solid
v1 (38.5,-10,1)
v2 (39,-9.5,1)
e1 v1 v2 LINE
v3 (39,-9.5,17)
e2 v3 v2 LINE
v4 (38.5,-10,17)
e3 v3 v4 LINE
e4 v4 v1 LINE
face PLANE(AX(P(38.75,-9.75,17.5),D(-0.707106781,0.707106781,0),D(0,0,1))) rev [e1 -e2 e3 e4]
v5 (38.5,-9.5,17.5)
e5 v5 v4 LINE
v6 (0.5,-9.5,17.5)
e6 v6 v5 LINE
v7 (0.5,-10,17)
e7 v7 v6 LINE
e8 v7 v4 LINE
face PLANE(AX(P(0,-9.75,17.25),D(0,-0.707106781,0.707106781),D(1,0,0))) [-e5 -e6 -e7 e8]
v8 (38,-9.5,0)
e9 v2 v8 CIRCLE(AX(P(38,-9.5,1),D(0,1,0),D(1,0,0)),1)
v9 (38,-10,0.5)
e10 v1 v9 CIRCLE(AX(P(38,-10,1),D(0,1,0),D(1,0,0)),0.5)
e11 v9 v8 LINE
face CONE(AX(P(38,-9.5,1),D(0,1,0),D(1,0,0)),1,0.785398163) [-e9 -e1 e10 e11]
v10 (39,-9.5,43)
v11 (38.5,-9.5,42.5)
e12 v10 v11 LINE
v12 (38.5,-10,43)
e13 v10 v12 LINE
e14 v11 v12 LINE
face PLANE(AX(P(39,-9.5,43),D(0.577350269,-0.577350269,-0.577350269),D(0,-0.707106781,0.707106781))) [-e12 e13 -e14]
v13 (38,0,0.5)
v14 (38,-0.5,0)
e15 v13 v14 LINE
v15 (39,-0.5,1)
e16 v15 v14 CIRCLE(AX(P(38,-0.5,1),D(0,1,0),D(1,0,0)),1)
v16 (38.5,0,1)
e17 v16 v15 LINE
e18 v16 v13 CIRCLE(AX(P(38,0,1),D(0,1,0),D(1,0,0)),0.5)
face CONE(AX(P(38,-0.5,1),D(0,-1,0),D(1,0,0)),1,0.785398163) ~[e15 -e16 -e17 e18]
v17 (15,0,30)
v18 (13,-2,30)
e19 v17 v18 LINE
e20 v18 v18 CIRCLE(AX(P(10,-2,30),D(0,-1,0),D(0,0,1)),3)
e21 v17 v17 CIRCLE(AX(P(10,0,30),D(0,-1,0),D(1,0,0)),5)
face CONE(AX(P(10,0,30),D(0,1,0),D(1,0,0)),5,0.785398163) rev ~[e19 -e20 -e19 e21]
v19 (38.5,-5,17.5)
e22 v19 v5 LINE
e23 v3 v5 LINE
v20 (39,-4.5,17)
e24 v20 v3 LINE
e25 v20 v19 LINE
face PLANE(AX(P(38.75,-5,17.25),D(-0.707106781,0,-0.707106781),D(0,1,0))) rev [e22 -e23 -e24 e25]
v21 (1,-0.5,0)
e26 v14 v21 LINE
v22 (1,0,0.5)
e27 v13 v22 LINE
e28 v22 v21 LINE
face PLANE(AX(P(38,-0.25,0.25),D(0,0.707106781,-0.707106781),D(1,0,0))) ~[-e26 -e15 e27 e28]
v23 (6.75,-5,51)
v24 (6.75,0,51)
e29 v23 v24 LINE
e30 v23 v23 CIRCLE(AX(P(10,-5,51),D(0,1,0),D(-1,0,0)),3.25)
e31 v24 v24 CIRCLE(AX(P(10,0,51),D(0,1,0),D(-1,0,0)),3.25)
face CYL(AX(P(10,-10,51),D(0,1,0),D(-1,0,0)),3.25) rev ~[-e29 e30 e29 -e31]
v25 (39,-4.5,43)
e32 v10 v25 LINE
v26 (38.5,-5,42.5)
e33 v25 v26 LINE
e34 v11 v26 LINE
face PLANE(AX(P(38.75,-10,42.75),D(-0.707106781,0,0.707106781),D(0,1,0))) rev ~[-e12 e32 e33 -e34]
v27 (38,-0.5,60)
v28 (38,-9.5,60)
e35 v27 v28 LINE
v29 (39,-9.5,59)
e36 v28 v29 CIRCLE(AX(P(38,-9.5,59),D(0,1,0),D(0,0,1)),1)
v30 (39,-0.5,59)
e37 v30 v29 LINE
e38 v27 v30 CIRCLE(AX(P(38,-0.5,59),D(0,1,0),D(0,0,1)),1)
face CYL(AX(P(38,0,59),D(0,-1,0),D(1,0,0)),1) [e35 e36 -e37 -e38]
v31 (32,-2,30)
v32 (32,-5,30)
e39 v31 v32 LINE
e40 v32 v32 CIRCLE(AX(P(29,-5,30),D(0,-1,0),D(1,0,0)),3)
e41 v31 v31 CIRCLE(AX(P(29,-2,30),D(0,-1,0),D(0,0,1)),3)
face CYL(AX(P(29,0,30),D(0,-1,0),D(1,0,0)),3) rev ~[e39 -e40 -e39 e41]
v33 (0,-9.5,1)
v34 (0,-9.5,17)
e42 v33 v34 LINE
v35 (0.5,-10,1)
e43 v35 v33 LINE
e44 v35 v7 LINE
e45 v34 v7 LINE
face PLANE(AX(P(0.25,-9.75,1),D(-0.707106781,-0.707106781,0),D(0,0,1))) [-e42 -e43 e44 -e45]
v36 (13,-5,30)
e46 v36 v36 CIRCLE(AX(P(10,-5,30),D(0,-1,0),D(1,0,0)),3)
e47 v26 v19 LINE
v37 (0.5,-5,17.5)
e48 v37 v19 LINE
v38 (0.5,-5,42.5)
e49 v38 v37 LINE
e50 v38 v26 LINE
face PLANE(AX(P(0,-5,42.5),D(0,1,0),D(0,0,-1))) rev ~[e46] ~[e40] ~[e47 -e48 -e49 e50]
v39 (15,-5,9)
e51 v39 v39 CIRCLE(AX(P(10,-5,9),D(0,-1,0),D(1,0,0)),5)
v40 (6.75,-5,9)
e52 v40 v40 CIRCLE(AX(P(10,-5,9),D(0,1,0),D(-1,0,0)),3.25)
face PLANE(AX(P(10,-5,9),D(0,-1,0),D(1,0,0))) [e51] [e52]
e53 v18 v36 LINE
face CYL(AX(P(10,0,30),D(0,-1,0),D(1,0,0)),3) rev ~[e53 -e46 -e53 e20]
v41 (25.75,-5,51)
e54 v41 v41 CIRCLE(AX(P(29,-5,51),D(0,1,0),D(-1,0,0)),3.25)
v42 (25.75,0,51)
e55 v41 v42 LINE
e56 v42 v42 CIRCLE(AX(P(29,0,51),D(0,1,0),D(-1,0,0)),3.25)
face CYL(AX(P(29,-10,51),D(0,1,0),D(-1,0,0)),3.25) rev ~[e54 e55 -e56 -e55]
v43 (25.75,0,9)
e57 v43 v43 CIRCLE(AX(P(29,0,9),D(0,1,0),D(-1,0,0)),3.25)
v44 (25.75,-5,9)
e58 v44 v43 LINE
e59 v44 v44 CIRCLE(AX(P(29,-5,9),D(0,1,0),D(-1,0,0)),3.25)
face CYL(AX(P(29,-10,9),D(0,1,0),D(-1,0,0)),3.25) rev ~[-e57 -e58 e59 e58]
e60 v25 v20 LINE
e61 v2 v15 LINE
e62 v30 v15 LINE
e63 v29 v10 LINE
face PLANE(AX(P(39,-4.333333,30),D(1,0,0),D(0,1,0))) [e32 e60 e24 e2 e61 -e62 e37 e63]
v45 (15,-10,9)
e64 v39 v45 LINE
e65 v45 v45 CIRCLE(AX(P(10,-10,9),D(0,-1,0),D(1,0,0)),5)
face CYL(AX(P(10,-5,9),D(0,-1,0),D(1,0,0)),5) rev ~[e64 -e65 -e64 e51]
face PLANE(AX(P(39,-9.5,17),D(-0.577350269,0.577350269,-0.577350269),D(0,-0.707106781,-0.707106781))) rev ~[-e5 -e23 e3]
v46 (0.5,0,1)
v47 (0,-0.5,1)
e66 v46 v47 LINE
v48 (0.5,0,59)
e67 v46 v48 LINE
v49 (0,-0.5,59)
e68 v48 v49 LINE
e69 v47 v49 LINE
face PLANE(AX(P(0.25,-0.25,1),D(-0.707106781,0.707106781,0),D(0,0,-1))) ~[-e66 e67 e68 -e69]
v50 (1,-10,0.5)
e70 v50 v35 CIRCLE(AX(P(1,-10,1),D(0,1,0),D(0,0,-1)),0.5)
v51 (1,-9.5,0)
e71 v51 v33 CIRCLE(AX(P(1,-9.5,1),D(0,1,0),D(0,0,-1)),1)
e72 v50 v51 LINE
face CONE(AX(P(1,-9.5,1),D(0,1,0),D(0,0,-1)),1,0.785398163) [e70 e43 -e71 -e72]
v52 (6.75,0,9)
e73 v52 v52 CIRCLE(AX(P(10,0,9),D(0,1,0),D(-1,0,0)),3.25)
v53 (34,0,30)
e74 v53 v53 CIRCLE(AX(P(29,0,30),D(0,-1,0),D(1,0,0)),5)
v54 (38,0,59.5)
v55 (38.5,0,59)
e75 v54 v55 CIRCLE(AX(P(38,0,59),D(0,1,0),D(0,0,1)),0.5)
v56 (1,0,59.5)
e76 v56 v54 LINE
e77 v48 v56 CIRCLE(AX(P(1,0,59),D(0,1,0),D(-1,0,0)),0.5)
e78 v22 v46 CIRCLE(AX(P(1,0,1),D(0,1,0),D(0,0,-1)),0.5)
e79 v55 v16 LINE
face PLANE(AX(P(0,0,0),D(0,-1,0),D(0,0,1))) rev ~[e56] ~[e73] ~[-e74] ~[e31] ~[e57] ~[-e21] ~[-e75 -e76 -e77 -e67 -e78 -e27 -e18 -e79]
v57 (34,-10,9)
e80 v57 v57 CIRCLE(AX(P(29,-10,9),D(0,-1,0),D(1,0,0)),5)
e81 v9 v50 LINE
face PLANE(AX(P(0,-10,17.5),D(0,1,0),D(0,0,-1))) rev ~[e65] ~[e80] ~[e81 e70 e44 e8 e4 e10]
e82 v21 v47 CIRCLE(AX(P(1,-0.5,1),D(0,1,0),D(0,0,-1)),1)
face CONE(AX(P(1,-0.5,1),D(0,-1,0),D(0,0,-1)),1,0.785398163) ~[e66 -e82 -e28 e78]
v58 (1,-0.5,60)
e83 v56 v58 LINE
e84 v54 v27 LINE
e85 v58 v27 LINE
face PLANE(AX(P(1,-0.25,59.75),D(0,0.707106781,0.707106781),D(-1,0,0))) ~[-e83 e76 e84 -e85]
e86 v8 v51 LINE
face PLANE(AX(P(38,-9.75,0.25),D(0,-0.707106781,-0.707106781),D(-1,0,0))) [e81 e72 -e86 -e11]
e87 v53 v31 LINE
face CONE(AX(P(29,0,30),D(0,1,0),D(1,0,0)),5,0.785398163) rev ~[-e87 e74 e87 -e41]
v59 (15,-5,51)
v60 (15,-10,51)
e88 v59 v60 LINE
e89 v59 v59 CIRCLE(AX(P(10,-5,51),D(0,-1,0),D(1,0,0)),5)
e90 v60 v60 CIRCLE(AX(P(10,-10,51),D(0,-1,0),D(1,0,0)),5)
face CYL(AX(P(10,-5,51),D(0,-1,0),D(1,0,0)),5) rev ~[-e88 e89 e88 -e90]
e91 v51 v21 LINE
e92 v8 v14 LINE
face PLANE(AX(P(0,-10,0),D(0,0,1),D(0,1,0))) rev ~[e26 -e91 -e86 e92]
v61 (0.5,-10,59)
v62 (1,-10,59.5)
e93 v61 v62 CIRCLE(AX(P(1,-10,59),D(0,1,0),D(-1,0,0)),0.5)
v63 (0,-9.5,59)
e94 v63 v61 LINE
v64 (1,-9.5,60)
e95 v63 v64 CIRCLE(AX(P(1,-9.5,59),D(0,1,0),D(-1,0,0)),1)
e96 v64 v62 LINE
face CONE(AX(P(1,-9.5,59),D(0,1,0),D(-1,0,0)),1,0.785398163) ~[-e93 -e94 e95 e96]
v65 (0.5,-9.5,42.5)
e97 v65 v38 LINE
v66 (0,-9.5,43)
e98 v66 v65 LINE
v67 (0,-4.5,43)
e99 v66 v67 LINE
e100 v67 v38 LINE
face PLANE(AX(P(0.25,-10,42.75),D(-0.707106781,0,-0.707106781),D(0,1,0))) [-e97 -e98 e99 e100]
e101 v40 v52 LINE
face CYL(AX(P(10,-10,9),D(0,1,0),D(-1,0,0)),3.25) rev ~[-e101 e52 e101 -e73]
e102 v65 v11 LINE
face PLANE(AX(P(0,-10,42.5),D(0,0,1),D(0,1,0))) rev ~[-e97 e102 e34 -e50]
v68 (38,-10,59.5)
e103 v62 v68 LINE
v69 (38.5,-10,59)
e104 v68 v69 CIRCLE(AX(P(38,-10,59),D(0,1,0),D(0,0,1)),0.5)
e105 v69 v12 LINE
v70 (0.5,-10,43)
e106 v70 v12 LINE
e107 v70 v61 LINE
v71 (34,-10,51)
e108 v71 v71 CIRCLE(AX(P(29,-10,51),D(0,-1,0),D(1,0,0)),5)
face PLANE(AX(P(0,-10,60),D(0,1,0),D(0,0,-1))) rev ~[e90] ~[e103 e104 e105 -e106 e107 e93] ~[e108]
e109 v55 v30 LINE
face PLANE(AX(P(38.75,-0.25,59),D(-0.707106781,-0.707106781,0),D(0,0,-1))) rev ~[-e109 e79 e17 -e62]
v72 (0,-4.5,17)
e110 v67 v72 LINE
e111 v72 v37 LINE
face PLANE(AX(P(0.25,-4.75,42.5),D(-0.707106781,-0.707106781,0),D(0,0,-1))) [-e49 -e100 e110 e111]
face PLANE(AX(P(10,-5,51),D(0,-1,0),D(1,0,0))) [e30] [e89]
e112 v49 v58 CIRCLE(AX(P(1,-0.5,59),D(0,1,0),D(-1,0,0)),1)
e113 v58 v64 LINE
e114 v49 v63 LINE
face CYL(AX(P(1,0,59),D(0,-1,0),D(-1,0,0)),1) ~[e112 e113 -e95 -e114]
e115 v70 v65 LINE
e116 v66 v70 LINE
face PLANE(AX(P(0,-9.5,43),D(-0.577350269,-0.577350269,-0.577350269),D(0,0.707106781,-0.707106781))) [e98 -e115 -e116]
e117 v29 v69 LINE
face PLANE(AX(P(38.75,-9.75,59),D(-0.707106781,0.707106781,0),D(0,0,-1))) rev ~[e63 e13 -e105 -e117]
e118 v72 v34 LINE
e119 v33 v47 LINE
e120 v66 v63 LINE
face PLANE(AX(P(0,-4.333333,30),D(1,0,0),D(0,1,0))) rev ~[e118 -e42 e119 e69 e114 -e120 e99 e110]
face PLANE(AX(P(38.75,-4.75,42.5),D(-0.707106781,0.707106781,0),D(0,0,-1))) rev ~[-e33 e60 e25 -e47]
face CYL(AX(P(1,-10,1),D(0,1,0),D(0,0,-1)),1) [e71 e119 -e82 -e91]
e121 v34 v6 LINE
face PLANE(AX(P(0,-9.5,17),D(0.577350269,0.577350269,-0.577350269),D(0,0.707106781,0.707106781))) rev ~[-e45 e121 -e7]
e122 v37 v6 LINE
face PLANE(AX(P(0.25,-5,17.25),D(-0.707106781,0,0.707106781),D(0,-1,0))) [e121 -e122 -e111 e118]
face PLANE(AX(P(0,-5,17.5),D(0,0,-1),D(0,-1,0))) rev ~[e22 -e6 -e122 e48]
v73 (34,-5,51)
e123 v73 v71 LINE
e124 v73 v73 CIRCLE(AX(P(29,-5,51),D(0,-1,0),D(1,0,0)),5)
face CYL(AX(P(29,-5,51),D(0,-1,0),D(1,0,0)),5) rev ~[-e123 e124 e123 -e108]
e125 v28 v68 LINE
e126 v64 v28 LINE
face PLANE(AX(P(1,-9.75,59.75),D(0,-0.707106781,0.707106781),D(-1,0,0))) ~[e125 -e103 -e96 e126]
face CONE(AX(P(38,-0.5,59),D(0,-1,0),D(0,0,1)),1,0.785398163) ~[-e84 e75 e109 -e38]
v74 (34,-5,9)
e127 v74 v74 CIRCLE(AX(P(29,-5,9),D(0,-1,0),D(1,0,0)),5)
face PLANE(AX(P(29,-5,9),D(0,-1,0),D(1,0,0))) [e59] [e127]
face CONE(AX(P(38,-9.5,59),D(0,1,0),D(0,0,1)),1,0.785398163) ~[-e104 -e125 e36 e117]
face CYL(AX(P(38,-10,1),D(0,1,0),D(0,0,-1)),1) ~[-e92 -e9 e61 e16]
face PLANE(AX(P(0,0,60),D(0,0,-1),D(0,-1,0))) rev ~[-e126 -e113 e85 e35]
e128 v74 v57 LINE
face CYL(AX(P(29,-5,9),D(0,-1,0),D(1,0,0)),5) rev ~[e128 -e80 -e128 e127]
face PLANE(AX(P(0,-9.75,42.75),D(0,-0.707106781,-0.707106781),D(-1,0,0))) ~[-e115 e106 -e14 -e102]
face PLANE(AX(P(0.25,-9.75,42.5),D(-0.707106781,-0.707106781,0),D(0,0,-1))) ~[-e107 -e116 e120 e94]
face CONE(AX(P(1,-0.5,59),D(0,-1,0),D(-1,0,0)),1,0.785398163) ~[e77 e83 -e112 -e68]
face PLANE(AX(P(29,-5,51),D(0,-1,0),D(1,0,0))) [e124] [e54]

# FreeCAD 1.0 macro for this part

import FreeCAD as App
import Part
import Sketcher


def edges_at(feature, points):
    """Names of the edges that pass closest to the given points."""
    edges = feature.Shape.Edges
    near = lambda p: min(range(len(edges)), key=lambda i: edges[i].distToShape(Part.Vertex(*p))[0])
    return sorted({f"Edge{near(p) + 1}" for p in points})

doc = App.newDocument("Part")
body = doc.addObject("PartDesign::Body", "Body")

sketch1 = body.newObject("Sketcher::SketchObject", "Sketch")
sketch1.AttachmentSupport = (doc.getObject("YZ_Plane"), [""])
sketch1.MapMode = "FlatFace"
sketch1.addGeometry(Part.LineSegment(App.Vector(-10, 0, 0), App.Vector(0, 0, 0)), False)
sketch1.addGeometry(Part.LineSegment(App.Vector(0, 0, 0), App.Vector(0, 60, 0)), False)
sketch1.addGeometry(Part.LineSegment(App.Vector(0, 60, 0), App.Vector(-10, 60, 0)), False)
sketch1.addGeometry(Part.LineSegment(App.Vector(-10, 60, 0), App.Vector(-10, 42, 0)), False)
sketch1.addGeometry(Part.LineSegment(App.Vector(-10, 42, 0), App.Vector(-5, 42, 0)), False)
sketch1.addGeometry(Part.LineSegment(App.Vector(-5, 42, 0), App.Vector(-5, 18, 0)), False)
sketch1.addGeometry(Part.LineSegment(App.Vector(-5, 18, 0), App.Vector(-10, 18, 0)), False)
sketch1.addGeometry(Part.LineSegment(App.Vector(-10, 18, 0), App.Vector(-10, 0, 0)), False)
sketch1.addConstraint(Sketcher.Constraint("Coincident", 0, 2, 1, 1))
sketch1.addConstraint(Sketcher.Constraint("Coincident", 1, 2, 2, 1))
sketch1.addConstraint(Sketcher.Constraint("Coincident", 2, 2, 3, 1))
sketch1.addConstraint(Sketcher.Constraint("Coincident", 3, 2, 4, 1))
sketch1.addConstraint(Sketcher.Constraint("Coincident", 4, 2, 5, 1))
sketch1.addConstraint(Sketcher.Constraint("Coincident", 5, 2, 6, 1))
sketch1.addConstraint(Sketcher.Constraint("Coincident", 6, 2, 7, 1))
sketch1.addConstraint(Sketcher.Constraint("Coincident", 7, 2, 0, 1))
sketch1.addConstraint(Sketcher.Constraint("Horizontal", 0))
sketch1.addConstraint(Sketcher.Constraint("Vertical", 1))
sketch1.addConstraint(Sketcher.Constraint("Horizontal", 2))
sketch1.addConstraint(Sketcher.Constraint("Vertical", 3))
sketch1.addConstraint(Sketcher.Constraint("Horizontal", 4))
sketch1.addConstraint(Sketcher.Constraint("Vertical", 5))
sketch1.addConstraint(Sketcher.Constraint("Horizontal", 6))
sketch1.addConstraint(Sketcher.Constraint("Vertical", 7))
sketch1.addConstraint(Sketcher.Constraint("Coincident", 0, 2, -1, 1))
sketch1.addConstraint(Sketcher.Constraint("Vertical", 3, 2, 6, 2))
sketch1.addConstraint(Sketcher.Constraint("Equal", 3, 7))
sketch1.addConstraint(Sketcher.Constraint("DistanceX", 0, 1, 0, 2, 10.0))
sketch1.addConstraint(Sketcher.Constraint("DistanceX", 4, 1, 4, 2, 5.0))
sketch1.addConstraint(Sketcher.Constraint("DistanceY", 1, 1, 1, 2, 60.0))
sketch1.addConstraint(Sketcher.Constraint("DistanceY", 5, 2, 5, 1, 25.0))
pad1 = body.newObject("PartDesign::Pad", "Pad")
pad1.Profile = sketch1
pad1.Length = 39

sketch2 = body.newObject("Sketcher::SketchObject", "Sketch001")
sketch2.AttachmentSupport = (doc.getObject("XZ_Plane"), [""])
sketch2.MapMode = "FlatFace"
sketch2.addGeometry(Part.Circle(App.Vector(29, 30, 0), App.Vector(0, 0, 1), 3), False)
sketch2.addGeometry(Part.Circle(App.Vector(10, 30, 0), App.Vector(0, 0, 1), 3), False)
sketch2.addConstraint(Sketcher.Constraint("Equal", 0, 1))
sketch2.addConstraint(Sketcher.Constraint("Horizontal", 0, 3, 1, 3))
sketch2.addConstraint(Sketcher.Constraint("Diameter", 0, 6.0))
sketch2.addConstraint(Sketcher.Constraint("DistanceX", -1, 1, 0, 3, 29.0))
sketch2.addConstraint(Sketcher.Constraint("DistanceY", -1, 1, 0, 3, 30.0))
sketch2.addConstraint(Sketcher.Constraint("DistanceX", -1, 1, 1, 3, 10.0))
doc.recompute()
hole = body.newObject("PartDesign::Hole", "Hole")
hole.Profile = sketch2
hole.ThreadType = "None"
hole.Diameter = 6
hole.DepthType = "ThroughAll"
hole.HoleCutType = "Countersink"
hole.HoleCutDiameter = 10
hole.HoleCutCountersinkAngle = 90
hole.Reversed = True

sketch3 = body.newObject("Sketcher::SketchObject", "Sketch002")
sketch3.AttachmentSupport = (doc.getObject("XZ_Plane"), [""])
sketch3.MapMode = "FlatFace"
sketch3.AttachmentOffset = App.Placement(App.Vector(0, 0, 10), App.Rotation())
sketch3.addGeometry(Part.Circle(App.Vector(10, 51, 0), App.Vector(0, 0, 1), 3.2), False)
sketch3.addGeometry(Part.Circle(App.Vector(29, 51, 0), App.Vector(0, 0, 1), 3.2), False)
sketch3.addGeometry(Part.Circle(App.Vector(10, 9, 0), App.Vector(0, 0, 1), 3.2), False)
sketch3.addGeometry(Part.Circle(App.Vector(29, 9, 0), App.Vector(0, 0, 1), 3.2), False)
sketch3.addConstraint(Sketcher.Constraint("Equal", 0, 1))
sketch3.addConstraint(Sketcher.Constraint("Equal", 1, 2))
sketch3.addConstraint(Sketcher.Constraint("Equal", 2, 3))
sketch3.addConstraint(Sketcher.Constraint("Horizontal", 0, 3, 1, 3))
sketch3.addConstraint(Sketcher.Constraint("Horizontal", 2, 3, 3, 3))
sketch3.addConstraint(Sketcher.Constraint("Vertical", 0, 3, 2, 3))
sketch3.addConstraint(Sketcher.Constraint("Vertical", 1, 3, 3, 3))
sketch3.addConstraint(Sketcher.Constraint("Diameter", 0, 6.5))
sketch3.addConstraint(Sketcher.Constraint("DistanceX", -1, 1, 0, 3, 10.0))
sketch3.addConstraint(Sketcher.Constraint("DistanceY", -1, 1, 0, 3, 51.0))
sketch3.addConstraint(Sketcher.Constraint("DistanceX", -1, 1, 1, 3, 29.0))
sketch3.addConstraint(Sketcher.Constraint("DistanceY", -1, 1, 2, 3, 9.0))
doc.recompute()
hole2 = body.newObject("PartDesign::Hole", "Hole001")
hole2.Profile = sketch3
hole2.ThreadType = "None"
hole2.Diameter = 6.5
hole2.DepthType = "ThroughAll"
hole2.HoleCutType = "Counterbore"
hole2.HoleCutDiameter = 10
hole2.HoleCutDepth = 5
doc.recompute()

fillet = body.newObject("PartDesign::Fillet", "Fillet")
fillet.Base = (hole2, edges_at(hole2, [
    (39, -5, 60),
    (39, -5, 0),
    (0, -5, 60),
    (0, -5, 0),
]))
fillet.Radius = 1
doc.recompute()

chamfer = body.newObject("PartDesign::Chamfer", "Chamfer")
chamfer.Base = (fillet, edges_at(fillet, [
    (19.5, -10, 42.5),
    (19.5, -10, 17.5),
    (39, -7.5, 42.5),
    (39, -5, 30),
    (39, -7.5, 17.5),
    (39, -10, 50.75),
    (39, -10, 9.25),
    (0, -7.5, 42.5),
    (0, -7.5, 17.5),
    (0, -10, 50.75),
    (0, 0, 30),
    (0, -5, 30),
]))
chamfer.Size = 0.5

doc.recompute()
